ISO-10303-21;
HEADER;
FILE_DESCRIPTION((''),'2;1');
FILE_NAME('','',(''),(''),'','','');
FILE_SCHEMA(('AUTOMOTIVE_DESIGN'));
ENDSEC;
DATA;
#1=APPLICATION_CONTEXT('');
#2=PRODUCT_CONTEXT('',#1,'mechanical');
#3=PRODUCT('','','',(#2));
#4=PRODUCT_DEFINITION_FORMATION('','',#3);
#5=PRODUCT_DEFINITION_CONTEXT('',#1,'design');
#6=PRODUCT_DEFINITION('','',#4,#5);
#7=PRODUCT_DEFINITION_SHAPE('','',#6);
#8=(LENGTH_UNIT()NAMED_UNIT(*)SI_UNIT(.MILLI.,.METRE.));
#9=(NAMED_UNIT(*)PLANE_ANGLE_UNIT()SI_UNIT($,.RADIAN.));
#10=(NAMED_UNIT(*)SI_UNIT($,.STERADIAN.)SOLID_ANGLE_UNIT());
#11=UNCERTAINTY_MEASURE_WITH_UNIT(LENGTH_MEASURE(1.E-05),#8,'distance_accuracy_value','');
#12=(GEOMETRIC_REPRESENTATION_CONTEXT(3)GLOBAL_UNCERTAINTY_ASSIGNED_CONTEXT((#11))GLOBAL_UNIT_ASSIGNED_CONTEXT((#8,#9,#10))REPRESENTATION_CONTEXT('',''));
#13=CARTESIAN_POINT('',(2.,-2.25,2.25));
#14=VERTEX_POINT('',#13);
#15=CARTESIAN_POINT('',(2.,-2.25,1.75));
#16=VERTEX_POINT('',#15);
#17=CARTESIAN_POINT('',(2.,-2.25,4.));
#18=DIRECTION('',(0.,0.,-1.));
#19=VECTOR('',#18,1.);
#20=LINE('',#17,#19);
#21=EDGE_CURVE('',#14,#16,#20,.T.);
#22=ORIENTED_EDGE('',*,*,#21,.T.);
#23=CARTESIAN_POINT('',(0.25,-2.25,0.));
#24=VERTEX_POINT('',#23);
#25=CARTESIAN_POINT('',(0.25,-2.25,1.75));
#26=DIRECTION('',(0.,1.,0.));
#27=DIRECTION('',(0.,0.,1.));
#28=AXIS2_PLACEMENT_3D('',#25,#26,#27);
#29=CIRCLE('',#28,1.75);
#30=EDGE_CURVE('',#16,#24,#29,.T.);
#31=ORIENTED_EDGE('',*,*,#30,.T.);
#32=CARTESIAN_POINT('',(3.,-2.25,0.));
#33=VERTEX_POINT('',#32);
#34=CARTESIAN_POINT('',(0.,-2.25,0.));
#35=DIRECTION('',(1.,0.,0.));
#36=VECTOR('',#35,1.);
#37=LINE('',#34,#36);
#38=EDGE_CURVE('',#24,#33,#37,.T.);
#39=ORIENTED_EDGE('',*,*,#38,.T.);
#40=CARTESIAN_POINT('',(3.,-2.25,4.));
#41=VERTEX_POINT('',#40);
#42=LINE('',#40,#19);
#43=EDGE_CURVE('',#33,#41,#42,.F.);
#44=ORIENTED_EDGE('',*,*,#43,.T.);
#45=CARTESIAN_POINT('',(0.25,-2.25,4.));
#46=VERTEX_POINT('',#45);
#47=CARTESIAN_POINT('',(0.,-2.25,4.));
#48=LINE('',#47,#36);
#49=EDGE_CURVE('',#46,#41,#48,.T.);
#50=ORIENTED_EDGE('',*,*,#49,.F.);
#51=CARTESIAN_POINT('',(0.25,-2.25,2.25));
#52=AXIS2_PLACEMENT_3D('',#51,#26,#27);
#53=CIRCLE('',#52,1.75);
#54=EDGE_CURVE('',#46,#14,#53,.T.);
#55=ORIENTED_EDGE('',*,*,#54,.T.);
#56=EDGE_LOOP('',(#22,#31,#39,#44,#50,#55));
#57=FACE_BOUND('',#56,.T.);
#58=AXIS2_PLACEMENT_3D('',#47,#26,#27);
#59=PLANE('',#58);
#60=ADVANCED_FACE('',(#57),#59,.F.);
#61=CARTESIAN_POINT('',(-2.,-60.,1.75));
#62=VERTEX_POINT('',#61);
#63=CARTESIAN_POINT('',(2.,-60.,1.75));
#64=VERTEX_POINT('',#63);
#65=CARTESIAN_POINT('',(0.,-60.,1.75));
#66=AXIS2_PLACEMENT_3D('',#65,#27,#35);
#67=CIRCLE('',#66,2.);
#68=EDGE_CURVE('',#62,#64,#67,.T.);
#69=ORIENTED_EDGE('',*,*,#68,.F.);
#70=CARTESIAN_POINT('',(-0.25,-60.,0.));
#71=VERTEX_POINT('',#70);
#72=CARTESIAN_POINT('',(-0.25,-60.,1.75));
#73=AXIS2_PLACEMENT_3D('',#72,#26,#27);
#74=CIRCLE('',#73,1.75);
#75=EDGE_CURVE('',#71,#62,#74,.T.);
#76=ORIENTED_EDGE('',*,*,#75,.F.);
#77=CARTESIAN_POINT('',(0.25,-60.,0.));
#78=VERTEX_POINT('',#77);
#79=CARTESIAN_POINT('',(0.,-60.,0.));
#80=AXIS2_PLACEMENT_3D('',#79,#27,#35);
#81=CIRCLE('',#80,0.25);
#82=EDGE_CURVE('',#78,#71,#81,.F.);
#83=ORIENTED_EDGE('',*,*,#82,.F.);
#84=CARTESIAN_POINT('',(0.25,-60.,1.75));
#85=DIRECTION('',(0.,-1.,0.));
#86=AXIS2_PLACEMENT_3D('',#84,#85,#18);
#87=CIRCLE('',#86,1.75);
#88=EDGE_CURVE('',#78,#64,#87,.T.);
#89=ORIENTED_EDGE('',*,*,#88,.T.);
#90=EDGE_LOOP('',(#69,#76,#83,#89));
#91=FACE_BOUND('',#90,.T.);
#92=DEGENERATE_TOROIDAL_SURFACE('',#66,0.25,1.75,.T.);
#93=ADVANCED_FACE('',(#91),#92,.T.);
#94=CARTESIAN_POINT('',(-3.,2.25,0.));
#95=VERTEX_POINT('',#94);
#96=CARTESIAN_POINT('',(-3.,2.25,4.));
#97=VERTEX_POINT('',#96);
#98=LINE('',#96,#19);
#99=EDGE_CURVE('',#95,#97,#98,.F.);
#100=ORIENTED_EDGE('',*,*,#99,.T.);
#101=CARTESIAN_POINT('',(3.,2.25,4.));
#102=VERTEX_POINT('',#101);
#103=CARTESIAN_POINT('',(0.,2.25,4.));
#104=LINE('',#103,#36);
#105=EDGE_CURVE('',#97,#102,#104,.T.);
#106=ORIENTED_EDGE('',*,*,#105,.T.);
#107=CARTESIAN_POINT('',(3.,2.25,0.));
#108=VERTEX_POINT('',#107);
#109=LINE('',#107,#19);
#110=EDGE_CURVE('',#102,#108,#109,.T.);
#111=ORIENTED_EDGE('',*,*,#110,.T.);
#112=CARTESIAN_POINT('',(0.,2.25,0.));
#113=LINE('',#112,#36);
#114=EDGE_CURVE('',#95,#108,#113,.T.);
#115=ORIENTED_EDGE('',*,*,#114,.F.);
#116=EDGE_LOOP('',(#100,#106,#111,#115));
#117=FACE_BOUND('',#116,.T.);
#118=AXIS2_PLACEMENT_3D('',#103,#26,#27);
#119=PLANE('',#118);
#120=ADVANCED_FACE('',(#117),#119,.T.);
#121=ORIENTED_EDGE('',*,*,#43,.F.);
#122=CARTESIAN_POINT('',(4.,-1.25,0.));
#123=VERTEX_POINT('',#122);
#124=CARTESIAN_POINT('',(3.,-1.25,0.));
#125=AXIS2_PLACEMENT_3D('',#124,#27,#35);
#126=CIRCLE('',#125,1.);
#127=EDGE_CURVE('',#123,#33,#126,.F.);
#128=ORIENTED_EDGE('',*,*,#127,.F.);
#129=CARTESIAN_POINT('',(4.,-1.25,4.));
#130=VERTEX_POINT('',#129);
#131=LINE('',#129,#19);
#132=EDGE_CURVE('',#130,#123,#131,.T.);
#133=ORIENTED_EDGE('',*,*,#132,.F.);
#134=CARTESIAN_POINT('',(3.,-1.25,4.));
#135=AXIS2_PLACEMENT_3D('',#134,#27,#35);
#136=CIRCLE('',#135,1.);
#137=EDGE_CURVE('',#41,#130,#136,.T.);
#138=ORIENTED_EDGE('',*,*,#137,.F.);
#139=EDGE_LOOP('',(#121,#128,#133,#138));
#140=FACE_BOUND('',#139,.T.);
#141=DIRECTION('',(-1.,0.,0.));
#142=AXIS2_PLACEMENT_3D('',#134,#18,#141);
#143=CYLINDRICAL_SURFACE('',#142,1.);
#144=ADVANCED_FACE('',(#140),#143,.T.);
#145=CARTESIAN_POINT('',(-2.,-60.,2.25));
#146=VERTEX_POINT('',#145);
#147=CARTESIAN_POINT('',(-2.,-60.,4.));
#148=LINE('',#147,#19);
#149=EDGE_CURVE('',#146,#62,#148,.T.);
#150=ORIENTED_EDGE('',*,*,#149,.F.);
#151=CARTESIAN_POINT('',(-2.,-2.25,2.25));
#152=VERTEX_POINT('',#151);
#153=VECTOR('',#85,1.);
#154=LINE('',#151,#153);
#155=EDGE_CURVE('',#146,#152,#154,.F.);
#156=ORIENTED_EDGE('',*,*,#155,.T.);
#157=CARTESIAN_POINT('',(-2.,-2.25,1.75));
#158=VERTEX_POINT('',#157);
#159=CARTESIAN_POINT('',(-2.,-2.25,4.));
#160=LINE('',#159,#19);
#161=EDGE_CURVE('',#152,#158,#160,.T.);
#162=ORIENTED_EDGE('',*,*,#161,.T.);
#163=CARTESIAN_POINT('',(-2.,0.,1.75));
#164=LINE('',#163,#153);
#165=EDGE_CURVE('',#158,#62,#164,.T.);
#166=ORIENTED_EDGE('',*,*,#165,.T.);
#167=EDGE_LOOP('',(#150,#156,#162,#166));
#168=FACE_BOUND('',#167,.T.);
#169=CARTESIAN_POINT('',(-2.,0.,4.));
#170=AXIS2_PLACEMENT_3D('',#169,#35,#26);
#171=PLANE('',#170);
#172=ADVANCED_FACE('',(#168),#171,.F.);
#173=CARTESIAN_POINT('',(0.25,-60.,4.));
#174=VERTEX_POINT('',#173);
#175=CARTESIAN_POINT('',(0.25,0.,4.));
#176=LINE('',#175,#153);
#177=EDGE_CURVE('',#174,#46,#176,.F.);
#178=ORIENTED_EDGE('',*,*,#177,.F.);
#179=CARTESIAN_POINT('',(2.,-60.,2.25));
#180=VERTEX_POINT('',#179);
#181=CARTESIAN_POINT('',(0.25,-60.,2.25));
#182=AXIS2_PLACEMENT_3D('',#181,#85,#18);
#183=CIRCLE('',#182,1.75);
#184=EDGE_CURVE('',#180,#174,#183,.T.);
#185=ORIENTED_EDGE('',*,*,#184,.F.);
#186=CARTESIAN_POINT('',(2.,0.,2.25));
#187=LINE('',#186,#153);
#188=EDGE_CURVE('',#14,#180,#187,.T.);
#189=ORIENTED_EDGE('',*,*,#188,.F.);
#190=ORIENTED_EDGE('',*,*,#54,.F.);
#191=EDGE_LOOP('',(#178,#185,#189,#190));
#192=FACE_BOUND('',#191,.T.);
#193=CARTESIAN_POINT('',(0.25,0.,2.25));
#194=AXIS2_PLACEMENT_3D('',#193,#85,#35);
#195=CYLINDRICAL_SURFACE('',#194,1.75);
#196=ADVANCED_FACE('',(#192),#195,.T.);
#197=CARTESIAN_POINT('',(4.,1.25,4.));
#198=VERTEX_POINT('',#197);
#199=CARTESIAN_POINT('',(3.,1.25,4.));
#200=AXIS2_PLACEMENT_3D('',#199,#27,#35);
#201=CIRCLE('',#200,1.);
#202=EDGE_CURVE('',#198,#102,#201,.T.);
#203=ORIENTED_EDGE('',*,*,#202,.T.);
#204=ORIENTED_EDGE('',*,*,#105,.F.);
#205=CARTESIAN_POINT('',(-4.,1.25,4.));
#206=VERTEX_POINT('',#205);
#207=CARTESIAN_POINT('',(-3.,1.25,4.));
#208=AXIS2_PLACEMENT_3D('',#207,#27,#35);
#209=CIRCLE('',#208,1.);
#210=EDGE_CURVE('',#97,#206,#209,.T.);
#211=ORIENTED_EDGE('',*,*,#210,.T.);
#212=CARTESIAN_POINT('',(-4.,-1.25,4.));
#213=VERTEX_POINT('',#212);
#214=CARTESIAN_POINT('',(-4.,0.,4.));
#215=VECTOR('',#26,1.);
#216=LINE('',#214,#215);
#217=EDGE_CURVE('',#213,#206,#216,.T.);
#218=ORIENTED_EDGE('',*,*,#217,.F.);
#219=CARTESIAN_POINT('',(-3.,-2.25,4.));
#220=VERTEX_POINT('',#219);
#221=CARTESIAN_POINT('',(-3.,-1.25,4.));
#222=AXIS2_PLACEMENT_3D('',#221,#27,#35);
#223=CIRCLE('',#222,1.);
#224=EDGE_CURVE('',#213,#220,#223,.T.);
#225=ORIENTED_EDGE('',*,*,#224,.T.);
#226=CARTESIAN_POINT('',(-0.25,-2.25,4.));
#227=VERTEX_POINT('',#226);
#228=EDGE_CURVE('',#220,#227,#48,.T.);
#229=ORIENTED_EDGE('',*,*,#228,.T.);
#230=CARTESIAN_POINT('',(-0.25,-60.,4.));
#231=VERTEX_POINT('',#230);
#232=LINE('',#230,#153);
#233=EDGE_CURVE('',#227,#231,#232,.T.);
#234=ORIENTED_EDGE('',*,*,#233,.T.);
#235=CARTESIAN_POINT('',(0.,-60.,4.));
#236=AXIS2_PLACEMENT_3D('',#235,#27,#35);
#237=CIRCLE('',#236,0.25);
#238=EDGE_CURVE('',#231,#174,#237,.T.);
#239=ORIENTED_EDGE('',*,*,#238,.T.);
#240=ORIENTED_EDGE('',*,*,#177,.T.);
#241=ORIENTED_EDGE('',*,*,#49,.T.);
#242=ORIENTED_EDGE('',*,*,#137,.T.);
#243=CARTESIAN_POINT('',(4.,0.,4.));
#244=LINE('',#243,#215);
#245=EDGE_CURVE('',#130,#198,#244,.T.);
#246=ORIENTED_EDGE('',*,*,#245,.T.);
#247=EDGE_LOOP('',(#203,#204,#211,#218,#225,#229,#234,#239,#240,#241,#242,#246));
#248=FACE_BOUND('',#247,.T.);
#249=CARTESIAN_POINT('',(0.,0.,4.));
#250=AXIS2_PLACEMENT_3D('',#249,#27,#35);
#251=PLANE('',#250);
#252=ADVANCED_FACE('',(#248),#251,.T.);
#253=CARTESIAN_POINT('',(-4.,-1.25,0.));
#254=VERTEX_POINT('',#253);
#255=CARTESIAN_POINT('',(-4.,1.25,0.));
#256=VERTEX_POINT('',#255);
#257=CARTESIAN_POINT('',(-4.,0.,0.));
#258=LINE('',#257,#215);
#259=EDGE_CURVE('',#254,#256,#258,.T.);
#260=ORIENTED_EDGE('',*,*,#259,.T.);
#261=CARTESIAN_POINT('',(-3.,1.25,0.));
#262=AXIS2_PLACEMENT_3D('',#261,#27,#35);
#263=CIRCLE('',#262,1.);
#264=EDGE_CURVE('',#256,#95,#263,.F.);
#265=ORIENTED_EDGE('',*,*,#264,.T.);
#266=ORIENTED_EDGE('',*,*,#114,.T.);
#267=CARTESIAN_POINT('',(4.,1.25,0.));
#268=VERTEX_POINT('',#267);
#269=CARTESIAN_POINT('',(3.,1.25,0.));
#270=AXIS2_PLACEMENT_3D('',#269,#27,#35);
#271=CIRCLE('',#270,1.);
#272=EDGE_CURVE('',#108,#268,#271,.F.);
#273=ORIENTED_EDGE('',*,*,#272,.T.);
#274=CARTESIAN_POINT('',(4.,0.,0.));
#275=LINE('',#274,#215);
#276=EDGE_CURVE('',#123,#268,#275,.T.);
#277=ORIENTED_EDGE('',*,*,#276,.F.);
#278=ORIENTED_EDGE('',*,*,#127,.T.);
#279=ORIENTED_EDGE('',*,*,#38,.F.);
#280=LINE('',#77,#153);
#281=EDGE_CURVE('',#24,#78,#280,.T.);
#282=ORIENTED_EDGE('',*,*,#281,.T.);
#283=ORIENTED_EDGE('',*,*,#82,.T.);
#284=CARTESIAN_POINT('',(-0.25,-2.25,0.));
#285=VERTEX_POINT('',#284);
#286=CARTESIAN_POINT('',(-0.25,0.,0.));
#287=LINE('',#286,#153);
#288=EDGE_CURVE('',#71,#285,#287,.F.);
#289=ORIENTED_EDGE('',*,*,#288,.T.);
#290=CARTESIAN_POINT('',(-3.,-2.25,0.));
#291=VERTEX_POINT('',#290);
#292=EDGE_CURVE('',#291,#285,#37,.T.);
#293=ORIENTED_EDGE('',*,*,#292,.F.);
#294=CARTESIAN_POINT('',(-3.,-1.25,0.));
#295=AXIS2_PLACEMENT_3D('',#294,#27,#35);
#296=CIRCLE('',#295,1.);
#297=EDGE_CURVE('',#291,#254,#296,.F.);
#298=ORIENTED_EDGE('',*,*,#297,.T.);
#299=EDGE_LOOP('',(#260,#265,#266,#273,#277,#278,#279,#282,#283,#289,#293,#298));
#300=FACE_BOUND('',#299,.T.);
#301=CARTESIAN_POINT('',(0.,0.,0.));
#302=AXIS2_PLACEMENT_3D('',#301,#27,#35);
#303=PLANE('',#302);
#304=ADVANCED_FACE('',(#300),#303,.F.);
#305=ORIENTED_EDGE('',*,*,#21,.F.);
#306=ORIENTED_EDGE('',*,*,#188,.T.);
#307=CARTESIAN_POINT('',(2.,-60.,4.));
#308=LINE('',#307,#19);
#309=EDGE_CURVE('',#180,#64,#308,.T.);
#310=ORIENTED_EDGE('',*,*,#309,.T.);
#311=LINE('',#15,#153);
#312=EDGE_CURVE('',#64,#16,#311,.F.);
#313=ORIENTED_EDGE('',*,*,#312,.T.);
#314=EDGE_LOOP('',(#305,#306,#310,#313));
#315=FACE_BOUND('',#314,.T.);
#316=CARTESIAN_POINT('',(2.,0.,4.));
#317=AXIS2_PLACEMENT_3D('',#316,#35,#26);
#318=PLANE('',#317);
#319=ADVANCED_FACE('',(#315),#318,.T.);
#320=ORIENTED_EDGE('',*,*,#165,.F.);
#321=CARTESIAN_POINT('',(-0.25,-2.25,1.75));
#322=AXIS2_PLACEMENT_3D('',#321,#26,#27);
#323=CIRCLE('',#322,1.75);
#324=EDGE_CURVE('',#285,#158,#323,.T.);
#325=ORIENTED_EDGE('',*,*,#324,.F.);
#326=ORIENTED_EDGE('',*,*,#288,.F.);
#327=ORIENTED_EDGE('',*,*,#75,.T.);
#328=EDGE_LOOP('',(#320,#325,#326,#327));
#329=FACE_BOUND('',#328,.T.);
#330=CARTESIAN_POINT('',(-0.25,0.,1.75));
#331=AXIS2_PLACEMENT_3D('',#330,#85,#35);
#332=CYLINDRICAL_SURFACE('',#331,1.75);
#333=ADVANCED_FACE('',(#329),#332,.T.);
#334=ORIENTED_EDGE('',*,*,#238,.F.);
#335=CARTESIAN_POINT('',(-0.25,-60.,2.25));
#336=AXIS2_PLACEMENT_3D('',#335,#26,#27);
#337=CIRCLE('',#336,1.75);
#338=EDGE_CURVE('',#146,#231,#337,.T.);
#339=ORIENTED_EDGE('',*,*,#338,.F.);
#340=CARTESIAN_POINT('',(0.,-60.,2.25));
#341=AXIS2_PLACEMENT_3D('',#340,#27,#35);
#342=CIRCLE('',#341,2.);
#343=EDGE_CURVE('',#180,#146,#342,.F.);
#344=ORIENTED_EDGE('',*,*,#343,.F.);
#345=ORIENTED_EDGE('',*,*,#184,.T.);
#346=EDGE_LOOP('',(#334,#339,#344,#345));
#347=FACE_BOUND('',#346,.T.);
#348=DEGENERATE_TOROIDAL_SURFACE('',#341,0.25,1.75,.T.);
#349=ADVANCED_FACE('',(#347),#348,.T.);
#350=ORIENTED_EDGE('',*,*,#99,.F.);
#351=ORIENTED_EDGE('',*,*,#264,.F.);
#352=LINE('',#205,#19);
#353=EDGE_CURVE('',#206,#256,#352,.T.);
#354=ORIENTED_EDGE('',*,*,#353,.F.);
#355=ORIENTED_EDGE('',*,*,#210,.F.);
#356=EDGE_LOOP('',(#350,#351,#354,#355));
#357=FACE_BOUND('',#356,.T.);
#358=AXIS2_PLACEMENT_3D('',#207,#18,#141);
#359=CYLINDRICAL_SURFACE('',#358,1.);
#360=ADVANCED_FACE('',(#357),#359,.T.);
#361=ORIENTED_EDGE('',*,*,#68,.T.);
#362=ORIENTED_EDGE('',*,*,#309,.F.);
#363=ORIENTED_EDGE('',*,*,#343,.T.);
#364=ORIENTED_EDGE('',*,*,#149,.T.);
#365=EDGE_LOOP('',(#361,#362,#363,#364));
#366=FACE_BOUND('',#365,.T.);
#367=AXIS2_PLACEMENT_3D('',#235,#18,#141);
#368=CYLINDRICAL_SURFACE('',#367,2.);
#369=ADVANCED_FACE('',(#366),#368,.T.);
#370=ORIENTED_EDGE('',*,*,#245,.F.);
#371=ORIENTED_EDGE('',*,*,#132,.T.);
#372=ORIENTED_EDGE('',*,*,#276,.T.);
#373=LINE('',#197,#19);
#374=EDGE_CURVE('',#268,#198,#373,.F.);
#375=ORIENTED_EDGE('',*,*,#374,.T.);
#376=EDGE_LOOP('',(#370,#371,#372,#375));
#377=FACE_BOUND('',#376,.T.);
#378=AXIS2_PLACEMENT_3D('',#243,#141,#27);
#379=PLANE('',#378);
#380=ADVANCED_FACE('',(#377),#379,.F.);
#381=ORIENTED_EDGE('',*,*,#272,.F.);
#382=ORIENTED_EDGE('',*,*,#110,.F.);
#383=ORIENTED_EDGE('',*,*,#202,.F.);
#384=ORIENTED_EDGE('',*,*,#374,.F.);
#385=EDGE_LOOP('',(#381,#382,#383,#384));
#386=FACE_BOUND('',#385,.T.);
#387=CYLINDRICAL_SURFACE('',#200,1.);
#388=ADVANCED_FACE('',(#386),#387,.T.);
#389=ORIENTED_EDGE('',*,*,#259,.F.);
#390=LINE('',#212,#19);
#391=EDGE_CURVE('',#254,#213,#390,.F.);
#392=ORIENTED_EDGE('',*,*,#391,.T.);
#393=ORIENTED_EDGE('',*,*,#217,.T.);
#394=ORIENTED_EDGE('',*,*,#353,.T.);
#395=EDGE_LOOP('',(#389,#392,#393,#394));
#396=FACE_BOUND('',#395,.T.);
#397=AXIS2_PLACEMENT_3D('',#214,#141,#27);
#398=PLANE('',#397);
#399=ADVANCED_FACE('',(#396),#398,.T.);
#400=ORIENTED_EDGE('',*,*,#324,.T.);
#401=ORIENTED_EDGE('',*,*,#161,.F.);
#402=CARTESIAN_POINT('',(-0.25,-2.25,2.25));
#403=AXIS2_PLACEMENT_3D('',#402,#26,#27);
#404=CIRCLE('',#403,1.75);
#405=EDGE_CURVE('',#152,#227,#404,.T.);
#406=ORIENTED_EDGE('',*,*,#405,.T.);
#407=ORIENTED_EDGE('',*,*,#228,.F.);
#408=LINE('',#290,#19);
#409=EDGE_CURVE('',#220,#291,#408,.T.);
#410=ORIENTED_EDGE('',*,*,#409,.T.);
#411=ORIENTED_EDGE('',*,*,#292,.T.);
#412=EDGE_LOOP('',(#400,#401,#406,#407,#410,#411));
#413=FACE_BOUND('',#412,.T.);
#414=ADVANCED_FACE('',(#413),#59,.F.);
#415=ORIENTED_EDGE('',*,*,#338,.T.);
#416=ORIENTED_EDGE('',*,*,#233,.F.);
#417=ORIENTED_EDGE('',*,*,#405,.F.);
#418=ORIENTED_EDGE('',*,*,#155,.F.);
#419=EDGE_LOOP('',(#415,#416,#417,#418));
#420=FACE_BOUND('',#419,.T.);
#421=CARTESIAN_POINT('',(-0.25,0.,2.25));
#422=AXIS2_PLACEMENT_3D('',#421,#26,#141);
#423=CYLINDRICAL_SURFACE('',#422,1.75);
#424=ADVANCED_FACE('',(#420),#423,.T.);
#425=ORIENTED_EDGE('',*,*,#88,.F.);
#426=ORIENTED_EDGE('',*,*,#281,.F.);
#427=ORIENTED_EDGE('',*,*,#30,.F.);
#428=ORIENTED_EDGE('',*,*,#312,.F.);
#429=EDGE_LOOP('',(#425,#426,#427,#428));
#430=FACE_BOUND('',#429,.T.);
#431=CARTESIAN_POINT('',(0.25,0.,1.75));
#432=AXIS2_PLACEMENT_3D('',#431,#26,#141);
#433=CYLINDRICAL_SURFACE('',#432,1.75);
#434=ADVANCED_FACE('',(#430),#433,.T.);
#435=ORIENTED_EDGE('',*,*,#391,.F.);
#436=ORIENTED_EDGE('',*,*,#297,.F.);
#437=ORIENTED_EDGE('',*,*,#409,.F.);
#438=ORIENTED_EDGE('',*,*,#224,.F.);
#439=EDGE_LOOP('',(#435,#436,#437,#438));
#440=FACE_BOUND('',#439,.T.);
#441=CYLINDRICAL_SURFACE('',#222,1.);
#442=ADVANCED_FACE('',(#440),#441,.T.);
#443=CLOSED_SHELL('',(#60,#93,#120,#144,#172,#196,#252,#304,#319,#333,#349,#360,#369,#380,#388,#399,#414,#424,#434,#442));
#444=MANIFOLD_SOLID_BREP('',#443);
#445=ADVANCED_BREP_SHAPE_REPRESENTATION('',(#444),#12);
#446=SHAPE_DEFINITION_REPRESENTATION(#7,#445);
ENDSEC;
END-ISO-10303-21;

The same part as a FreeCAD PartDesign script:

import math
import FreeCAD as App
import Part
import Sketcher
Q = App.Units.Quantity


def edges_at(feature, points):
    """Names of the edges that pass closest to the given points."""
    edges = feature.Shape.Edges
    near = lambda p: min(range(len(edges)), key=lambda i: edges[i].distToShape(Part.Vertex(*p))[0])
    return sorted({f"Edge{near(p) + 1}" for p in points})

doc = App.newDocument("Part")
body = doc.addObject("PartDesign::Body", "Body")

# Sketch on XY plane
sketch1 = doc.addObject("Sketcher::SketchObject", "Sketch")
body.addObject(sketch1)
sketch1.AttachmentSupport = (doc.XY_Plane, [""])
sketch1.MapMode = "FlatFace"
sketch1.addGeometry([
    Part.ArcOfCircle(Part.Circle(App.Vector(0, -60, 0), App.Vector(0, 0, 1), 2), math.radians(180), math.radians(360)),  # 0
    Part.LineSegment(App.Vector(2, -60, 0), App.Vector(2, -2.25, 0)),  # 1
    Part.LineSegment(App.Vector(2, -2.25, 0), App.Vector(4, -2.25, 0)),  # 2
    Part.LineSegment(App.Vector(4, -2.25, 0), App.Vector(4, 2.25, 0)),  # 3
    Part.LineSegment(App.Vector(4, 2.25, 0), App.Vector(-4, 2.25, 0)),  # 4
    Part.LineSegment(App.Vector(-4, 2.25, 0), App.Vector(-4, -2.25, 0)),  # 5
    Part.LineSegment(App.Vector(-4, -2.25, 0), App.Vector(-2, -2.25, 0)),  # 6
    Part.LineSegment(App.Vector(-2, -2.25, 0), App.Vector(-2, -60, 0)),  # 7
], False)
sketch1.addConstraint([
    Sketcher.Constraint("Tangent", 0, 2, 1, 1),
    Sketcher.Constraint("Coincident", 1, 2, 2, 1),
    Sketcher.Constraint("Coincident", 2, 2, 3, 1),
    Sketcher.Constraint("Coincident", 3, 2, 4, 1),
    Sketcher.Constraint("Coincident", 4, 2, 5, 1),
    Sketcher.Constraint("Coincident", 5, 2, 6, 1),
    Sketcher.Constraint("Coincident", 6, 2, 7, 1),
    Sketcher.Constraint("Tangent", 7, 2, 0, 1),
    Sketcher.Constraint("Vertical", 1),
    Sketcher.Constraint("Horizontal", 2),
    Sketcher.Constraint("Vertical", 3),
    Sketcher.Constraint("Horizontal", 4),
    Sketcher.Constraint("Vertical", 5),
    Sketcher.Constraint("Horizontal", 6),
    Sketcher.Constraint("Vertical", 7),
    Sketcher.Constraint("Symmetric", 2, 2, 4, 2, -1, 1),
    Sketcher.Constraint("Symmetric", 1, 2, 6, 2, -2),
    Sketcher.Constraint("Radius", 0, Q("2 mm")),
    Sketcher.Constraint("DistanceX", 2, 1, 2, 2, Q("2 mm")),
    Sketcher.Constraint("DistanceY", 3, 1, 3, 2, Q("4.5 mm")),
    Sketcher.Constraint("DistanceY", 0, 3, -1, 1, Q("60 mm")),
])
pad1 = doc.addObject("PartDesign::Pad", "Pad")
body.addObject(pad1)
pad1.Profile = sketch1
pad1.Length = 4
doc.recompute()

fillet = doc.addObject("PartDesign::Fillet", "Fillet")
body.addObject(fillet)
fillet.Base = (pad1, edges_at(pad1, [
    (2, -31.125, 0),
    (0, -62, 0),
    (-2, -31.125, 0),
    (0, -62, 4),
    (2, -31.125, 4),
    (-2, -31.125, 4),
]))
fillet.Radius = 1.75
doc.recompute()

fillet2 = doc.addObject("PartDesign::Fillet", "Fillet001")
body.addObject(fillet2)
fillet2.Base = (fillet, edges_at(fillet, [
    (-4, -2.25, 2),
    (-4, 2.25, 2),
    (4, 2.25, 2),
    (4, -2.25, 2),
]))
fillet2.Radius = 1

doc.recompute()
